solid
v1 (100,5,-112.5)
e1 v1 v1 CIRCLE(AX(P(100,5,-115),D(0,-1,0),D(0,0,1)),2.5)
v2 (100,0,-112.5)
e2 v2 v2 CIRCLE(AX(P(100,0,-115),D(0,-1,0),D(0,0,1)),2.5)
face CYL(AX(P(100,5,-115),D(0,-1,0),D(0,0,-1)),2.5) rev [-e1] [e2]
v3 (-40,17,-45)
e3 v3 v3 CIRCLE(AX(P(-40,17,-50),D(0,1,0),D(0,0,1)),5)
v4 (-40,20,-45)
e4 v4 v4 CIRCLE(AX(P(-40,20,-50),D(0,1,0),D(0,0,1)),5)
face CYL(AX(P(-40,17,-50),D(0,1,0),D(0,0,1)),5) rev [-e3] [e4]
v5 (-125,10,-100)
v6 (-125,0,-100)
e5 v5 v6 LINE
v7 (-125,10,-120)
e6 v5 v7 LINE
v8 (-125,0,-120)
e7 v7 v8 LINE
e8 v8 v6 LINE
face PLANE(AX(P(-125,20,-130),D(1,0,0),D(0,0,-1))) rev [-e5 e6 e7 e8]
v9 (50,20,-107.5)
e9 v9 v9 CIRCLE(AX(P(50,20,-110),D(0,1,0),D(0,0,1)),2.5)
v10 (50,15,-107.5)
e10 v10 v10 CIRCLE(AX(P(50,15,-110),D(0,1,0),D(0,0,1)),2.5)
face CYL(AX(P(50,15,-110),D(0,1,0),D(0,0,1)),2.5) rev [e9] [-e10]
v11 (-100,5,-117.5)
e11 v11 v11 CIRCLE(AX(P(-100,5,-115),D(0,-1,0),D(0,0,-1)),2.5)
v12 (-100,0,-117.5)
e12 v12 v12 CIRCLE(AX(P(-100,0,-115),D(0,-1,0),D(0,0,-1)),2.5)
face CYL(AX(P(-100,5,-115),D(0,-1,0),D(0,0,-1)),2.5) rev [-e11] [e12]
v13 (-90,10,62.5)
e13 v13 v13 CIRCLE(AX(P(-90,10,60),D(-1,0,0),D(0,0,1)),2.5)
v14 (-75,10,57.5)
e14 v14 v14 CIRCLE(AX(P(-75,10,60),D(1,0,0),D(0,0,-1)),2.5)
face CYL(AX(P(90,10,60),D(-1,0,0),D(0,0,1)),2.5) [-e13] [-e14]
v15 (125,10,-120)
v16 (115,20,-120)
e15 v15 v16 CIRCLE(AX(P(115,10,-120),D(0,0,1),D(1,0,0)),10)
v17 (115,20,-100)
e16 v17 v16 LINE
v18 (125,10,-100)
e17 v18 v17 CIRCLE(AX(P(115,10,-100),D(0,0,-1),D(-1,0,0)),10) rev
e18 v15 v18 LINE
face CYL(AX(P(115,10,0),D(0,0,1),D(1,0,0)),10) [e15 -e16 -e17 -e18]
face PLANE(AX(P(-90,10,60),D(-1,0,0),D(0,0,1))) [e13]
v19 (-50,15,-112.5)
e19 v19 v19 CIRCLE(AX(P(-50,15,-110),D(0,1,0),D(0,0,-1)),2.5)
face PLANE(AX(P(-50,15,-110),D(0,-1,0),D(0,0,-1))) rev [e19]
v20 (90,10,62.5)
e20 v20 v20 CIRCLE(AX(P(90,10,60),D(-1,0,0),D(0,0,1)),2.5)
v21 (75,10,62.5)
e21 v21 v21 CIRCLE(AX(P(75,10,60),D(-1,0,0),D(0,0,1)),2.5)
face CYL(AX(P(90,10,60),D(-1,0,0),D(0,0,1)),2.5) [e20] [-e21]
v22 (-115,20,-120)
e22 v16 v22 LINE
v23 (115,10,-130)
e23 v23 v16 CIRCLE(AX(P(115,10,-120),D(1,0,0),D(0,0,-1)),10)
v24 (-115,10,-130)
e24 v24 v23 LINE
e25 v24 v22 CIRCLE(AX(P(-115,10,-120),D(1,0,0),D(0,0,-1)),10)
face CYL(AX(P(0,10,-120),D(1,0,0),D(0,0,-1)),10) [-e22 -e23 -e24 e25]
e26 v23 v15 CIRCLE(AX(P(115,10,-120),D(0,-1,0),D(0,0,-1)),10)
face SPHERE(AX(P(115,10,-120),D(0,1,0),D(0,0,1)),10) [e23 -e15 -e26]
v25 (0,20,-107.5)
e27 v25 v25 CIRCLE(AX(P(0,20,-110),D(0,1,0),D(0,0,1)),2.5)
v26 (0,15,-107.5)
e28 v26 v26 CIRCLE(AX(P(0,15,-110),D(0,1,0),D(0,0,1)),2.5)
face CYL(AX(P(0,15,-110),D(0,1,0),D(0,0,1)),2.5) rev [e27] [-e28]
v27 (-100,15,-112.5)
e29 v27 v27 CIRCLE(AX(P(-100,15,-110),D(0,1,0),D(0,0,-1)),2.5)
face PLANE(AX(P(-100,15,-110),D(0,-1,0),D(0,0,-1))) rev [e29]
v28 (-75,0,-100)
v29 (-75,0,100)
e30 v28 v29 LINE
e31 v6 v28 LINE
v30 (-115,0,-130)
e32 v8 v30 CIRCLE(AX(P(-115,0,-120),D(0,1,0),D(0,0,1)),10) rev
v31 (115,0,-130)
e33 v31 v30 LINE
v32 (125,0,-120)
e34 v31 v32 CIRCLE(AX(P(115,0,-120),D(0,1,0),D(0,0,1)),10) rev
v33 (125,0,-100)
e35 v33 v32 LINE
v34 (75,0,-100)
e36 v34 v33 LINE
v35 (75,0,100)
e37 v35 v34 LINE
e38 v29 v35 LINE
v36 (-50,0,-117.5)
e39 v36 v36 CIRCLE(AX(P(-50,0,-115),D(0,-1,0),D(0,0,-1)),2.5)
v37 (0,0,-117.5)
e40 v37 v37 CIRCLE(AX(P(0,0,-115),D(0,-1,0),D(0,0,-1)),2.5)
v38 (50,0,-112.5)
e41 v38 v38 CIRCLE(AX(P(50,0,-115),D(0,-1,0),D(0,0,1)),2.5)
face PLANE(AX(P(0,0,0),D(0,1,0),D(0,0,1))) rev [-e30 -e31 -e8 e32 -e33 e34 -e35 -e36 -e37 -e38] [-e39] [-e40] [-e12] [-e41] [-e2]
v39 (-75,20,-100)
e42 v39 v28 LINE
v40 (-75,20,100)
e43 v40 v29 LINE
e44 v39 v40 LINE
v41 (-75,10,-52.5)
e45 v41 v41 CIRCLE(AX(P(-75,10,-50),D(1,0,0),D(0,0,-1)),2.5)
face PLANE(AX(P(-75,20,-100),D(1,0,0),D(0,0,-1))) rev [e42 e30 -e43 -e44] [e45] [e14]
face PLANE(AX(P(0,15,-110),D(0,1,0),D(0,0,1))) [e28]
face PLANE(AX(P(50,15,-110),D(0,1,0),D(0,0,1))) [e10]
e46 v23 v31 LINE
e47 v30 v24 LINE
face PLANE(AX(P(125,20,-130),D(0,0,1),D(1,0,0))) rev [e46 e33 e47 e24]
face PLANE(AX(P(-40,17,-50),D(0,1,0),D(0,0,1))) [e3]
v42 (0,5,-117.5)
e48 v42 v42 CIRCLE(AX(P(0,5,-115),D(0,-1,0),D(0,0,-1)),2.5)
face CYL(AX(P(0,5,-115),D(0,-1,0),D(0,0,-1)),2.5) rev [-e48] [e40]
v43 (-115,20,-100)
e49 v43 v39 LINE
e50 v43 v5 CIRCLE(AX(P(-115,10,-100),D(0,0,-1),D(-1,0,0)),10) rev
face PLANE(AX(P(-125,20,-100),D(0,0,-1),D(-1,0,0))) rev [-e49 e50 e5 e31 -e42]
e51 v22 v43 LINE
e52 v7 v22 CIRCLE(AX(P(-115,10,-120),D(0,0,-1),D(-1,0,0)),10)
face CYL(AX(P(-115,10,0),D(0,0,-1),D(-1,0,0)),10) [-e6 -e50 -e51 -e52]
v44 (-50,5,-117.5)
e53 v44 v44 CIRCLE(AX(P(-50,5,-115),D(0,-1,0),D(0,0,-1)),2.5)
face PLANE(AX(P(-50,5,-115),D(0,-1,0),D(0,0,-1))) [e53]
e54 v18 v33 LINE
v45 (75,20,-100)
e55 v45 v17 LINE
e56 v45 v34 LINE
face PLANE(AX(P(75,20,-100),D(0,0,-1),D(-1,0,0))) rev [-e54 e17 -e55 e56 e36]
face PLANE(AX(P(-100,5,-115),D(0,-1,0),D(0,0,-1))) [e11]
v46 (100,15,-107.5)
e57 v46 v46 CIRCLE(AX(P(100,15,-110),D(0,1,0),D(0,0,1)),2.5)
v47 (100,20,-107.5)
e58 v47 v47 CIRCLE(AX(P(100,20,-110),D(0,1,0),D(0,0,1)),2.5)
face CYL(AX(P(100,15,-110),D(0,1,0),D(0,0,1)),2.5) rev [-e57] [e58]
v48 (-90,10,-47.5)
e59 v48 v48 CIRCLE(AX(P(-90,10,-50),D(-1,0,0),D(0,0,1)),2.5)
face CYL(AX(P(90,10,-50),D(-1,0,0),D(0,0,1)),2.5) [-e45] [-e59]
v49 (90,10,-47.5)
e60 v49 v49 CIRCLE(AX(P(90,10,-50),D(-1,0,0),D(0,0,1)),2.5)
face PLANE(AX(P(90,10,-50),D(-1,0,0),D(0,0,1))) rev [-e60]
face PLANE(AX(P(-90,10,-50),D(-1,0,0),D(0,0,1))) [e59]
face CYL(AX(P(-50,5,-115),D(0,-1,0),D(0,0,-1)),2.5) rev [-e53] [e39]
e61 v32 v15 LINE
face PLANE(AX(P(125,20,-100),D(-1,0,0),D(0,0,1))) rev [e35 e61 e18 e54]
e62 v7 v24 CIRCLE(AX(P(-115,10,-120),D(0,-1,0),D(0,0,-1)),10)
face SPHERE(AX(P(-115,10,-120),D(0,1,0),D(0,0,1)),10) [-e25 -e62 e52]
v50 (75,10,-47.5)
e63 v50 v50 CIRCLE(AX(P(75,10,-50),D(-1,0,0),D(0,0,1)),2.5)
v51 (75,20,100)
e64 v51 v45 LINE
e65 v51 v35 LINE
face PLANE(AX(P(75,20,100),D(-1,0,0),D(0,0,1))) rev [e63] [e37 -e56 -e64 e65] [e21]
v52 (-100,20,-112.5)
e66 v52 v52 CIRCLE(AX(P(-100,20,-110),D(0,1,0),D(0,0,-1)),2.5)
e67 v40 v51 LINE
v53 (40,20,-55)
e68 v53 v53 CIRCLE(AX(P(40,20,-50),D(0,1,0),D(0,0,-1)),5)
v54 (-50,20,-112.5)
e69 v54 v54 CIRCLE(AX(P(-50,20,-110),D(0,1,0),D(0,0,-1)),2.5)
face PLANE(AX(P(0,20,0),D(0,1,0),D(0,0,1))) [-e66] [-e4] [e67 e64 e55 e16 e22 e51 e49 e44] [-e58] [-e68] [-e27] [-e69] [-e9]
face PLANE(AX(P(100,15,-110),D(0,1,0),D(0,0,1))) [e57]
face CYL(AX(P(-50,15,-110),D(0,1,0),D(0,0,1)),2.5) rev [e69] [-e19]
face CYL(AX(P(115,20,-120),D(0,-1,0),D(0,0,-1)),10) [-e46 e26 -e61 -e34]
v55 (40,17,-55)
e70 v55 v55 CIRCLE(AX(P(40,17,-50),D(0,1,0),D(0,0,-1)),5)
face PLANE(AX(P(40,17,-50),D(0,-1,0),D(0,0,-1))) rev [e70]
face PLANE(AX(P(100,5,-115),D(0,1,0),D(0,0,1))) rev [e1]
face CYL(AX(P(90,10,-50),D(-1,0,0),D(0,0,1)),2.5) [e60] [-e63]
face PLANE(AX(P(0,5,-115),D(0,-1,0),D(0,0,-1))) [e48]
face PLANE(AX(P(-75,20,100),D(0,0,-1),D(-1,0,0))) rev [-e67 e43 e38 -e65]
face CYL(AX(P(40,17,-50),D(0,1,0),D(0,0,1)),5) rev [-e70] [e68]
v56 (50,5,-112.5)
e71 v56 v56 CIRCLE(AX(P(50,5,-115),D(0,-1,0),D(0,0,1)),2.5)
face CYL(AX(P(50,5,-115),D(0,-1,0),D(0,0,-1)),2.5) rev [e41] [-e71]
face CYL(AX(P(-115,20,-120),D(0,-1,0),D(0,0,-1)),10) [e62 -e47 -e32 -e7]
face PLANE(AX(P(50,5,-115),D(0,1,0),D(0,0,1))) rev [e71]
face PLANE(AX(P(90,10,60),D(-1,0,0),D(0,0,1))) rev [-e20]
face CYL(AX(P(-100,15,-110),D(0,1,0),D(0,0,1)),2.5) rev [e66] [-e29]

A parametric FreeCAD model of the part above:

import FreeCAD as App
import Part
import Sketcher
Q = App.Units.Quantity


def edges_at(feature, points):
    """Names of the edges that pass closest to the given points."""
    edges = feature.Shape.Edges
    near = lambda p: min(range(len(edges)), key=lambda i: edges[i].distToShape(Part.Vertex(*p))[0])
    return sorted({f"Edge{near(p) + 1}" for p in points})


def add_polygon(sketch, points):
    """Adds a closed chain of lines whose ends are joined by coincident constraints."""
    first, n = sketch.GeometryCount, len(points)
    for a, b in zip(points, points[1:] + points[:1]):
        sketch.addGeometry(Part.LineSegment(App.Vector(*a, 0), App.Vector(*b, 0)), False)
    for i in range(n):
        sketch.addConstraint(Sketcher.Constraint("Coincident", first + i, 2, first + (i + 1) % n, 1))

doc = App.newDocument("Part")
body = doc.addObject("PartDesign::Body", "Body")

# Sketch on XZ plane
sketch1 = body.newObject("Sketcher::SketchObject", "Sketch")
sketch1.AttachmentSupport = (doc.getObject("XZ_Plane"), [""])
sketch1.MapMode = "FlatFace"
add_polygon(sketch1, [(-75, 100), (75, 100), (75, -100), (125, -100), (125, -130), (-125, -130), (-125, -100), (-75, -100)])  # lines 0-7
sketch1.addConstraint(Sketcher.Constraint("Horizontal", 0))
sketch1.addConstraint(Sketcher.Constraint("Vertical", 1))
sketch1.addConstraint(Sketcher.Constraint("Horizontal", 2))
sketch1.addConstraint(Sketcher.Constraint("Vertical", 3))
sketch1.addConstraint(Sketcher.Constraint("Horizontal", 4))
sketch1.addConstraint(Sketcher.Constraint("Vertical", 5))
sketch1.addConstraint(Sketcher.Constraint("Horizontal", 6))
sketch1.addConstraint(Sketcher.Constraint("Vertical", 7))
sketch1.addConstraint(Sketcher.Constraint("Symmetric", 0, 2, 6, 2, -1, 1))
sketch1.addConstraint(Sketcher.Constraint("Symmetric", 2, 2, 5, 2, -2))
sketch1.addConstraint(Sketcher.Constraint("DistanceX", 0, 1, 0, 2, Q("150 mm")))
sketch1.addConstraint(Sketcher.Constraint("DistanceX", 2, 1, 2, 2, Q("50 mm")))
sketch1.addConstraint(Sketcher.Constraint("DistanceY", 1, 2, 1, 1, Q("200 mm")))
sketch1.addConstraint(Sketcher.Constraint("DistanceY", 3, 2, 3, 1, Q("30 mm")))
pad1 = body.newObject("PartDesign::Pad", "Pad")
pad1.Profile = sketch1
pad1.Length = 20
pad1.Reversed = True

# Sketch on XZ plane
sketch2 = body.newObject("Sketcher::SketchObject", "Sketch001")
sketch2.AttachmentSupport = (doc.getObject("XZ_Plane"), [""])
sketch2.MapMode = "FlatFace"
sketch2.addGeometry(Part.Circle(App.Vector(-100, -115, 0), App.Vector(0, 0, 1), 2.5), False)
sketch2.addGeometry(Part.Circle(App.Vector(-50, -115, 0), App.Vector(0, 0, 1), 2.5), False)
sketch2.addGeometry(Part.Circle(App.Vector(0, -115, 0), App.Vector(0, 0, 1), 2.5), False)
sketch2.addGeometry(Part.Circle(App.Vector(50, -115, 0), App.Vector(0, 0, 1), 2.5), False)
sketch2.addGeometry(Part.Circle(App.Vector(100, -115, 0), App.Vector(0, 0, 1), 2.5), False)
sketch2.addConstraint(Sketcher.Constraint("Equal", 0, 1))
sketch2.addConstraint(Sketcher.Constraint("Equal", 1, 2))
sketch2.addConstraint(Sketcher.Constraint("Equal", 2, 3))
sketch2.addConstraint(Sketcher.Constraint("Equal", 3, 4))
sketch2.addConstraint(Sketcher.Constraint("Symmetric", 1, 3, 3, 3, -2))
sketch2.addConstraint(Sketcher.Constraint("Symmetric", 0, 3, 4, 3, -2))
sketch2.addConstraint(Sketcher.Constraint("PointOnObject", 2, 3, -2))
sketch2.addConstraint(Sketcher.Constraint("Horizontal", 0, 3, 1, 3))
sketch2.addConstraint(Sketcher.Constraint("Horizontal", 1, 3, 2, 3))
sketch2.addConstraint(Sketcher.Constraint("Diameter", 0, Q("5 mm")))
sketch2.addConstraint(Sketcher.Constraint("DistanceX", 0, 3, -1, 1, Q("100 mm")))
sketch2.addConstraint(Sketcher.Constraint("DistanceY", 0, 3, -1, 1, Q("115 mm")))
sketch2.addConstraint(Sketcher.Constraint("DistanceX", 1, 3, -1, 1, Q("50 mm")))
pocket1 = body.newObject("PartDesign::Pocket", "Pocket")
pocket1.Profile = sketch2
pocket1.Length = 5
doc.recompute()

fillet = body.newObject("PartDesign::Fillet", "Fillet")
fillet.Base = (pocket1, edges_at(pocket1, [(-125, 10, -130), (125, 10, -130)]))
fillet.Radius = 10
doc.recompute()

fillet2 = body.newObject("PartDesign::Fillet", "Fillet001")
fillet2.Base = (fillet, edges_at(fillet, [
    (125, 20, -110),
    (0, 20, -130),
    (-125, 20, -110),
    (-122.071, 20, -127.071),
    (122.071, 20, -127.071),
]))
fillet2.Radius = 10

# Sketch on XZ plane
sketch3 = body.newObject("Sketcher::SketchObject", "Sketch002")
sketch3.AttachmentSupport = (doc.getObject("XZ_Plane"), [""])
sketch3.MapMode = "FlatFace"
sketch3.AttachmentOffset = App.Placement(App.Vector(0, 0, -20), App.Rotation())
sketch3.addGeometry(Part.Circle(App.Vector(0, -110, 0), App.Vector(0, 0, 1), 2.5), False)
sketch3.addGeometry(Part.Circle(App.Vector(50, -110, 0), App.Vector(0, 0, 1), 2.5), False)
sketch3.addGeometry(Part.Circle(App.Vector(100, -110, 0), App.Vector(0, 0, 1), 2.5), False)
sketch3.addGeometry(Part.Circle(App.Vector(-50, -110, 0), App.Vector(0, 0, 1), 2.5), False)
sketch3.addGeometry(Part.Circle(App.Vector(-100, -110, 0), App.Vector(0, 0, 1), 2.5), False)
sketch3.addConstraint(Sketcher.Constraint("Equal", 0, 1))
sketch3.addConstraint(Sketcher.Constraint("Equal", 1, 2))
sketch3.addConstraint(Sketcher.Constraint("Equal", 2, 3))
sketch3.addConstraint(Sketcher.Constraint("Equal", 3, 4))
sketch3.addConstraint(Sketcher.Constraint("Symmetric", 1, 3, 3, 3, -2))
sketch3.addConstraint(Sketcher.Constraint("Symmetric", 2, 3, 4, 3, -2))
sketch3.addConstraint(Sketcher.Constraint("PointOnObject", 0, 3, -2))
sketch3.addConstraint(Sketcher.Constraint("Horizontal", 0, 3, 1, 3))
sketch3.addConstraint(Sketcher.Constraint("Horizontal", 1, 3, 2, 3))
sketch3.addConstraint(Sketcher.Constraint("Diameter", 0, Q("5 mm")))
sketch3.addConstraint(Sketcher.Constraint("DistanceY", 0, 3, -1, 1, Q("110 mm")))
sketch3.addConstraint(Sketcher.Constraint("DistanceX", -1, 1, 1, 3, Q("50 mm")))
sketch3.addConstraint(Sketcher.Constraint("DistanceX", -1, 1, 2, 3, Q("100 mm")))
pocket2 = body.newObject("PartDesign::Pocket", "Pocket001")
pocket2.Profile = sketch3
pocket2.Length = 5
pocket2.Reversed = True

# Sketch on XZ plane
sketch4 = body.newObject("Sketcher::SketchObject", "Sketch003")
sketch4.AttachmentSupport = (doc.getObject("XZ_Plane"), [""])
sketch4.MapMode = "FlatFace"
sketch4.AttachmentOffset = App.Placement(App.Vector(0, 0, -20), App.Rotation())
sketch4.addGeometry(Part.Circle(App.Vector(-40, -50, 0), App.Vector(0, 0, 1), 5), False)
sketch4.addGeometry(Part.Circle(App.Vector(40, -50, 0), App.Vector(0, 0, 1), 5), False)
sketch4.addConstraint(Sketcher.Constraint("Equal", 0, 1))
sketch4.addConstraint(Sketcher.Constraint("Symmetric", 0, 3, 1, 3, -2))
sketch4.addConstraint(Sketcher.Constraint("Diameter", 0, Q("10 mm")))
sketch4.addConstraint(Sketcher.Constraint("DistanceX", 0, 3, -1, 1, Q("40 mm")))
sketch4.addConstraint(Sketcher.Constraint("DistanceY", 0, 3, -1, 1, Q("50 mm")))
pocket3 = body.newObject("PartDesign::Pocket", "Pocket002")
pocket3.Profile = sketch4
pocket3.Length = 3
pocket3.Reversed = True

# Sketch on YZ plane
sketch5 = body.newObject("Sketcher::SketchObject", "Sketch004")
sketch5.AttachmentSupport = (doc.getObject("YZ_Plane"), [""])
sketch5.MapMode = "FlatFace"
sketch5.AttachmentOffset = App.Placement(App.Vector(0, 0, -75), App.Rotation())
sketch5.addGeometry(Part.Circle(App.Vector(10, 60, 0), App.Vector(0, 0, 1), 2.5), False)
sketch5.addGeometry(Part.Circle(App.Vector(10, -50, 0), App.Vector(0, 0, 1), 2.5), False)
sketch5.addConstraint(Sketcher.Constraint("Equal", 0, 1))
sketch5.addConstraint(Sketcher.Constraint("Vertical", 0, 3, 1, 3))
sketch5.addConstraint(Sketcher.Constraint("Diameter", 0, Q("5 mm")))
sketch5.addConstraint(Sketcher.Constraint("DistanceX", -1, 1, 0, 3, Q("10 mm")))
sketch5.addConstraint(Sketcher.Constraint("DistanceY", -1, 1, 0, 3, Q("60 mm")))
sketch5.addConstraint(Sketcher.Constraint("DistanceY", 1, 3, -1, 1, Q("50 mm")))
pad2 = body.newObject("PartDesign::Pad", "Pad001")
pad2.Profile = sketch5
pad2.Type = "TwoLengths"
pad2.Length = 15
pad2.Length2 = 165
pad2.Reversed = True

doc.recompute()
